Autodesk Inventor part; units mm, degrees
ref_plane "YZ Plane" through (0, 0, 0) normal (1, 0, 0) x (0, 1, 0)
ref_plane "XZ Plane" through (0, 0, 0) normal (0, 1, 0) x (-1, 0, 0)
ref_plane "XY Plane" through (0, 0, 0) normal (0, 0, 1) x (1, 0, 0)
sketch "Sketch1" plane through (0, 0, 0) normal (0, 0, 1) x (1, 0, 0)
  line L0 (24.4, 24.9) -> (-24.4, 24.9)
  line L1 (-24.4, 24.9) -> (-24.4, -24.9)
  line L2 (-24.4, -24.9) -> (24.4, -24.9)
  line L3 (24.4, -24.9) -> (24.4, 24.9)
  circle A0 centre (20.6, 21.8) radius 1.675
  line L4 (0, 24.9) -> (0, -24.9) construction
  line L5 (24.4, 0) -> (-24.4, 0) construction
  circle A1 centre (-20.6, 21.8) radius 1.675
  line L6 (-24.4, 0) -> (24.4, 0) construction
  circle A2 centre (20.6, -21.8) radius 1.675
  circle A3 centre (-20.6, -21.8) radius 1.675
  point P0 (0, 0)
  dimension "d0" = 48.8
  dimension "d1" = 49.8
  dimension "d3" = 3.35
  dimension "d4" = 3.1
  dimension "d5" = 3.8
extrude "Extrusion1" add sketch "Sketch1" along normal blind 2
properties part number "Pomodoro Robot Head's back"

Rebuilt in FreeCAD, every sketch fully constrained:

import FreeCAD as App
import Part
import Sketcher
from FreeCAD import Vector

doc = App.newDocument("Part")
body = doc.addObject("PartDesign::Body", "Body")

sketch1 = body.newObject("Sketcher::SketchObject", "Sketch")
sketch1.AttachmentSupport = (doc.getObject("XY_Plane"), [""])
sketch1.MapMode = "FlatFace"
sketch1.addGeometry(Part.LineSegment(Vector(24.4, -24.9, 0), Vector(24.4, 24.9, 0)), False)
sketch1.addGeometry(Part.LineSegment(Vector(24.4, 24.9, 0), Vector(-24.4, 24.9, 0)), False)
sketch1.addGeometry(Part.LineSegment(Vector(-24.4, 24.9, 0), Vector(-24.4, -24.9, 0)), False)
sketch1.addGeometry(Part.LineSegment(Vector(-24.4, -24.9, 0), Vector(24.4, -24.9, 0)), False)
sketch1.addGeometry(Part.Circle(Vector(-20.6, -21.8, 0), Vector(0, 0, 1), 1.7), False)
sketch1.addGeometry(Part.Circle(Vector(20.6, -21.8, 0), Vector(0, 0, 1), 1.7), False)
sketch1.addGeometry(Part.Circle(Vector(-20.6, 21.8, 0), Vector(0, 0, 1), 1.7), False)
sketch1.addGeometry(Part.Circle(Vector(20.6, 21.8, 0), Vector(0, 0, 1), 1.7), False)
sketch1.addConstraint(Sketcher.Constraint("Coincident", 0, 2, 1, 1))
sketch1.addConstraint(Sketcher.Constraint("Coincident", 1, 2, 2, 1))
sketch1.addConstraint(Sketcher.Constraint("Coincident", 2, 2, 3, 1))
sketch1.addConstraint(Sketcher.Constraint("Coincident", 3, 2, 0, 1))
sketch1.addConstraint(Sketcher.Constraint("Vertical", 0))
sketch1.addConstraint(Sketcher.Constraint("Horizontal", 1))
sketch1.addConstraint(Sketcher.Constraint("Vertical", 2))
sketch1.addConstraint(Sketcher.Constraint("Horizontal", 3))
sketch1.addConstraint(Sketcher.Constraint("Equal", 4, 5))
sketch1.addConstraint(Sketcher.Constraint("Equal", 5, 6))
sketch1.addConstraint(Sketcher.Constraint("Equal", 6, 7))
sketch1.addConstraint(Sketcher.Constraint("Symmetric", 5, 3, 6, 3, -1, 1))
sketch1.addConstraint(Sketcher.Constraint("Symmetric", 4, 3, 7, 3, -1, 1))
sketch1.addConstraint(Sketcher.Constraint("Symmetric", 0, 2, 2, 2, -1, 1))
sketch1.addConstraint(Sketcher.Constraint("Symmetric", 4, 3, 5, 3, -2))
sketch1.addConstraint(Sketcher.Constraint("Diameter", 4, 3.35))
sketch1.addConstraint(Sketcher.Constraint("DistanceX", 1, 2, 1, 1, 48.8))
sketch1.addConstraint(Sketcher.Constraint("DistanceY", 0, 1, 0, 2, 49.8))
sketch1.addConstraint(Sketcher.Constraint("DistanceX", 7, 3, 0, 2, 3.8))
sketch1.addConstraint(Sketcher.Constraint("DistanceY", 7, 3, 0, 2, 3.1))
pad1 = body.newObject("PartDesign::Pad", "Pad")
pad1.Profile = sketch1
pad1.Length = 2

doc.recompute()
